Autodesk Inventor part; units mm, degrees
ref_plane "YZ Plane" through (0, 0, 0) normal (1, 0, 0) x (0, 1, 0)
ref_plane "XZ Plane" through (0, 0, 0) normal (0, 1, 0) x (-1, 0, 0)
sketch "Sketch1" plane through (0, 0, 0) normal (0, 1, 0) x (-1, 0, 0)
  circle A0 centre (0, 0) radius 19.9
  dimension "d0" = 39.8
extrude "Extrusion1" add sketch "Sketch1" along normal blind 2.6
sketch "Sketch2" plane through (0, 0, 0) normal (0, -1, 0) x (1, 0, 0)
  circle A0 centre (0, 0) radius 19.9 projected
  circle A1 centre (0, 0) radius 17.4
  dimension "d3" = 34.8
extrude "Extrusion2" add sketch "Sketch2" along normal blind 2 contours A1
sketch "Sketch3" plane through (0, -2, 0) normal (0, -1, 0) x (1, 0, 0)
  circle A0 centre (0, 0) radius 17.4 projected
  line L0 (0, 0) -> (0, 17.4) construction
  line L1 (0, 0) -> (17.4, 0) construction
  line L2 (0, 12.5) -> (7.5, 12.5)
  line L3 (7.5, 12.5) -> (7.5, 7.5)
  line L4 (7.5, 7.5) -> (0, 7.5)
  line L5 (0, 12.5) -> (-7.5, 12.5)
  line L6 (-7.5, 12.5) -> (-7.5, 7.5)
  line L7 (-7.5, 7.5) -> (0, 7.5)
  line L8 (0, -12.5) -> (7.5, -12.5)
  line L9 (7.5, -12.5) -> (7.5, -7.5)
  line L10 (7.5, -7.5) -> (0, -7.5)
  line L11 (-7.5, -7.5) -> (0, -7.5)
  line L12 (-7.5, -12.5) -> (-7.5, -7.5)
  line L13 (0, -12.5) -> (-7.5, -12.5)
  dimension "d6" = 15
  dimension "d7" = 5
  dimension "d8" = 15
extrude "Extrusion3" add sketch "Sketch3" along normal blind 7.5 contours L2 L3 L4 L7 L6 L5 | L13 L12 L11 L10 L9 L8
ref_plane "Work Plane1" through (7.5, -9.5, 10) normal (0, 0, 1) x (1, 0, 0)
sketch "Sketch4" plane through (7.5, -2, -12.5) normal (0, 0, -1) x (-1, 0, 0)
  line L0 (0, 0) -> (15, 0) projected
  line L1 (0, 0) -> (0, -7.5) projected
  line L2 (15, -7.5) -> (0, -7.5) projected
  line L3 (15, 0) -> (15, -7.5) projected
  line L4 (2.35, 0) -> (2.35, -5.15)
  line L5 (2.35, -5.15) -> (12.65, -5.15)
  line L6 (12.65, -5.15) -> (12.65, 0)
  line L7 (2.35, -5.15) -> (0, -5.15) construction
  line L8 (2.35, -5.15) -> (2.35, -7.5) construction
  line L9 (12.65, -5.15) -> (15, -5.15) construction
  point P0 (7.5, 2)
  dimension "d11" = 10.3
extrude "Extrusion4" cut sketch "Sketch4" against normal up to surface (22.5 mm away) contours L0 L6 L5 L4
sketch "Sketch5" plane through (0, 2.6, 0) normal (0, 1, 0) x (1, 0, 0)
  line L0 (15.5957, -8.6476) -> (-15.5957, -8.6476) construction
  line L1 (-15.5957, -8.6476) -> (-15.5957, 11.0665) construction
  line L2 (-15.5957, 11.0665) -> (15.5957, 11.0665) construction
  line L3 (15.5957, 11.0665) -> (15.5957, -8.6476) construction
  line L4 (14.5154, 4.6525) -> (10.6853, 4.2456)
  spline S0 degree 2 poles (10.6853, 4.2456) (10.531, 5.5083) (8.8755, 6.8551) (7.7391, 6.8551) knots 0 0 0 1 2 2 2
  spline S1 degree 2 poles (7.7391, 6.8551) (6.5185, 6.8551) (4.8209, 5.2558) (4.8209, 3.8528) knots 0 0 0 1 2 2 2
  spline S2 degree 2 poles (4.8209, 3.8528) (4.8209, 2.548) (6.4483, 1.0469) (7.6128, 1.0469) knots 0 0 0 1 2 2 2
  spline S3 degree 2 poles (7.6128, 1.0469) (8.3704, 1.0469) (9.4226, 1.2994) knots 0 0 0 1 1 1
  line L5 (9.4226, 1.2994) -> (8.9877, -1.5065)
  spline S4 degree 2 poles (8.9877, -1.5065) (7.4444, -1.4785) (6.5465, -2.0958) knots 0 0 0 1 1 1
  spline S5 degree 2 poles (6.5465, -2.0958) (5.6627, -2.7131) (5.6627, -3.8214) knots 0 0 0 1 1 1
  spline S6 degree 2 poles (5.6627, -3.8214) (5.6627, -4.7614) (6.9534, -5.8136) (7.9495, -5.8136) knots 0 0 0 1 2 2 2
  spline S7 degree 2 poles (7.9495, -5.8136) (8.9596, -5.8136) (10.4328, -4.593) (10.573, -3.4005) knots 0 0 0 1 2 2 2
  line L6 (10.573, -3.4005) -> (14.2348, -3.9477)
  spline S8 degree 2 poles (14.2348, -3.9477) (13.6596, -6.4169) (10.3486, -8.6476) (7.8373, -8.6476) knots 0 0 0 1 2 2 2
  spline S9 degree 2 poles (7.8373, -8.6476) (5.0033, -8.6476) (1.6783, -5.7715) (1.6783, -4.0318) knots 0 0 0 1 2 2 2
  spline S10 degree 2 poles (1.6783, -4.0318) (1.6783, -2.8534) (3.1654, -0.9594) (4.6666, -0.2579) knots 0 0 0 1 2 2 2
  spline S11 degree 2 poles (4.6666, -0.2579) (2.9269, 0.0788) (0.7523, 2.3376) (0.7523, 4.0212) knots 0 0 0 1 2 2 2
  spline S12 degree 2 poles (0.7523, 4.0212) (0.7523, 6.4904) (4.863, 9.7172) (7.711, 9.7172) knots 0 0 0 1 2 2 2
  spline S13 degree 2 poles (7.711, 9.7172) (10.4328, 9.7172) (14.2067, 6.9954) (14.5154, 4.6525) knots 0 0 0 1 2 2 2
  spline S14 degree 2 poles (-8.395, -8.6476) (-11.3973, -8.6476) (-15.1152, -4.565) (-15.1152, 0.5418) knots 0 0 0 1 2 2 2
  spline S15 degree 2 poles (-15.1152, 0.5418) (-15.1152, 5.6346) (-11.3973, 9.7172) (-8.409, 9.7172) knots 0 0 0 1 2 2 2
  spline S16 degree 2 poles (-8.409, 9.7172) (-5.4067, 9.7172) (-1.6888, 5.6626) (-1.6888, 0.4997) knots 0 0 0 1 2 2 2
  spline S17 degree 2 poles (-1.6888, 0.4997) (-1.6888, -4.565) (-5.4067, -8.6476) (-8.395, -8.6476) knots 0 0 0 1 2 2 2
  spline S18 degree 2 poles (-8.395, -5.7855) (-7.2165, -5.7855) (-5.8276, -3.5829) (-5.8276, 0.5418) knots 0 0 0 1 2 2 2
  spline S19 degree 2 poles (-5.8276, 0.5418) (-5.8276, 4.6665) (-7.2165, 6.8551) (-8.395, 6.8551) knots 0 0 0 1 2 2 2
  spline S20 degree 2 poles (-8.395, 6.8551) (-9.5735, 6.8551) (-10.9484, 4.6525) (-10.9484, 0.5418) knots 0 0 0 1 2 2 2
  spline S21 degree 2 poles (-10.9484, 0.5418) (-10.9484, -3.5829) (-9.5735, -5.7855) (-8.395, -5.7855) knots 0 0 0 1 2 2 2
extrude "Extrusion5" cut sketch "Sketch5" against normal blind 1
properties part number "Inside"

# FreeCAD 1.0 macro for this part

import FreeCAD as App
import Part
import Sketcher
from FreeCAD import Vector


def add_polygon(sketch, points):
    """Adds a closed chain of lines whose ends are joined by coincident constraints."""
    first, n = sketch.GeometryCount, len(points)
    for a, b in zip(points, points[1:] + points[:1]):
        sketch.addGeometry(Part.LineSegment(App.Vector(*a, 0), App.Vector(*b, 0)), False)
    for i in range(n):
        sketch.addConstraint(Sketcher.Constraint("Coincident", first + i, 2, first + (i + 1) % n, 1))

doc = App.newDocument("Part")
params = doc.addObject("Spreadsheet::Sheet", "Params")
for row, (alias, value) in enumerate([
    ("sketch1_diameter", "39.8 mm"),
    ("pad1_length", "2.6 mm"),
    ("sketch2_diameter", "34.8 mm"),
    ("pad2_length", "2 mm"),
    ("sketch3_width", "15 mm"),
    ("sketch3_height", "5 mm"),
    ("pad3_length", "7.5 mm"),
    ("sketch4_width", "10.3 mm"),
    ("sketch4_height", "5.15 mm"),
    ("pocket1_length", "22.5 mm"),
    ("pocket2_length", "1 mm"),
], start=1):
    params.set(f"A{row}", alias)
    params.set(f"B{row}", "=" + value)
    params.setAlias(f"B{row}", alias)

body = doc.addObject("PartDesign::Body", "Body")

sketch1 = body.newObject("Sketcher::SketchObject", "Sketch")
sketch1.AttachmentSupport = (doc.getObject("XZ_Plane"), [""])
sketch1.MapMode = "FlatFace"
sketch1.addGeometry(Part.Circle(Vector(0, 0, 0), Vector(0, 0, 1), 20), False)
sketch1.addConstraint([
    Sketcher.Constraint("Coincident", 0, 3, -1, 1),
    Sketcher.Constraint("Diameter", 0, 39.8),
])
sketch1.setExpression("Constraints[1]", "Params.sketch1_diameter")
pad1 = body.newObject("PartDesign::Pad", "Pad")
pad1.Profile = sketch1
pad1.setExpression("Length", "Params.pad1_length")
pad1.Reversed = True

sketch2 = body.newObject("Sketcher::SketchObject", "Sketch001")
sketch2.AttachmentSupport = (doc.getObject("XZ_Plane"), [""])
sketch2.MapMode = "FlatFace"
sketch2.addGeometry(Part.Circle(Vector(0, 0, 0), Vector(0, 0, 1), 17), False)
sketch2.addConstraint([
    Sketcher.Constraint("Coincident", 0, 3, -1, 1),
    Sketcher.Constraint("Diameter", 0, 34.8),
])
sketch2.setExpression("Constraints[1]", "Params.sketch2_diameter")
pad2 = body.newObject("PartDesign::Pad", "Pad001")
pad2.Profile = sketch2
pad2.setExpression("Length", "Params.pad2_length")

sketch3 = body.newObject("Sketcher::SketchObject", "Sketch002")
sketch3.AttachmentSupport = (doc.getObject("XZ_Plane"), [""])
sketch3.MapMode = "FlatFace"
sketch3.AttachmentOffset = App.Placement(Vector(0, 0, 2), App.Rotation())
add_polygon(sketch3, [(8, 12), (-8, 12), (-8, 8), (8, 8)])
add_polygon(sketch3, [(-8, -12), (8, -12), (8, -8), (-8, -8)])
sketch3.addConstraint([
    Sketcher.Constraint("Horizontal", 0),
    Sketcher.Constraint("Vertical", 1),
    Sketcher.Constraint("Horizontal", 2),
    Sketcher.Constraint("Vertical", 3),
    Sketcher.Constraint("Horizontal", 4),
    Sketcher.Constraint("Vertical", 5),
    Sketcher.Constraint("Horizontal", 6),
    Sketcher.Constraint("Vertical", 7),
    Sketcher.Constraint("Symmetric", 0, 2, 4, 2, -1, 1),
    Sketcher.Constraint("Symmetric", 2, 2, 6, 2, -1, 1),
    Sketcher.Constraint("Vertical", 3, 2, 4, 2),
    Sketcher.Constraint("DistanceX", 0, 2, 0, 1, 15.0),
    Sketcher.Constraint("DistanceY", 1, 2, 1, 1, 5.0),
    Sketcher.Constraint("DistanceY", 5, 2, 2, 2, 15.0),
])
sketch3.setExpression("Constraints[19]", "Params.sketch3_width")
sketch3.setExpression("Constraints[20]", "Params.sketch3_height")
pad3 = body.newObject("PartDesign::Pad", "Pad002")
pad3.Profile = sketch3
pad3.setExpression("Length", "Params.pad3_length")

sketch4 = body.newObject("Sketcher::SketchObject", "Sketch003")
sketch4.AttachmentSupport = (doc.getObject("XY_Plane"), [""])
sketch4.MapMode = "FlatFace"
sketch4.AttachmentOffset = App.Placement(Vector(0, 0, -12.5), App.Rotation())
add_polygon(sketch4, [(-5, -2), (5, -2), (5, -7), (-5, -7)])
sketch4.addConstraint([
    Sketcher.Constraint("Horizontal", 0),
    Sketcher.Constraint("Vertical", 1),
    Sketcher.Constraint("Horizontal", 2),
    Sketcher.Constraint("Vertical", 3),
    Sketcher.Constraint("DistanceX", 0, 1, 0, 2, 10.3),
    Sketcher.Constraint("DistanceY", 0, 2, -1, 1, 2.0),
    Sketcher.Constraint("DistanceY", 1, 2, 1, 1, 5.15),
    Sketcher.Constraint("DistanceX", -1, 1, 0, 2, 5.15),
])
sketch4.setExpression("Constraints[8]", "Params.sketch4_width")
sketch4.setExpression("Constraints[10]", "Params.sketch4_height")
pocket1 = body.newObject("PartDesign::Pocket", "Pocket")
pocket1.Profile = sketch4
pocket1.setExpression("Length", "Params.pocket1_length")
pocket1.Reversed = True

sketch5 = body.newObject("Sketcher::SketchObject", "Sketch004")
sketch5.AttachmentSupport = (doc.getObject("XZ_Plane"), [""])
sketch5.MapMode = "FlatFace"
sketch5.AttachmentOffset = App.Placement(Vector(0, 0, -2.6), App.Rotation())
sketch5.addGeometry([
    Part.LineSegment(Vector(10.6853, -4.2456, 0), Vector(14.5154, -4.6525, 0)),
    Part.BSplineCurve([Vector(7.711, -9.7172, 0), Vector(10.4328, -9.7172, 0), Vector(14.2067, -6.9954, 0), Vector(14.5154, -4.6525, 0)], [3, 1, 3], [0, 1, 2], False, 2, [1, 1, 1, 1], False),
    Part.BSplineCurve([Vector(0.7523, -4.0212, 0), Vector(0.7523, -6.4904, 0), Vector(4.863, -9.7172, 0), Vector(7.711, -9.7172, 0)], [3, 1, 3], [0, 1, 2], False, 2, [1, 1, 1, 1], False),
    Part.BSplineCurve([Vector(4.6666, 0.2579, 0), Vector(2.9269, -0.0788, 0), Vector(0.7523, -2.3376, 0), Vector(0.7523, -4.0212, 0)], [3, 1, 3], [0, 1, 2], False, 2, [1, 1, 1, 1], False),
    Part.BSplineCurve([Vector(1.6783, 4.0318, 0), Vector(1.6783, 2.8534, 0), Vector(3.1654, 0.9594, 0), Vector(4.6666, 0.2579, 0)], [3, 1, 3], [0, 1, 2], False, 2, [1, 1, 1, 1], False),
    Part.BSplineCurve([Vector(7.8373, 8.6476, 0), Vector(5.0033, 8.6476, 0), Vector(1.6783, 5.7715, 0), Vector(1.6783, 4.0318, 0)], [3, 1, 3], [0, 1, 2], False, 2, [1, 1, 1, 1], False),
    Part.BSplineCurve([Vector(14.2348, 3.9477, 0), Vector(13.6596, 6.4169, 0), Vector(10.3486, 8.6476, 0), Vector(7.8373, 8.6476, 0)], [3, 1, 3], [0, 1, 2], False, 2, [1, 1, 1, 1], False),
    Part.LineSegment(Vector(14.2348, 3.9477, 0), Vector(10.573, 3.4005, 0)),
    Part.BSplineCurve([Vector(7.9495, 5.8136, 0), Vector(8.9596, 5.8136, 0), Vector(10.4328, 4.593, 0), Vector(10.573, 3.4005, 0)], [3, 1, 3], [0, 1, 2], False, 2, [1, 1, 1, 1], False),
    Part.BSplineCurve([Vector(5.6627, 3.8214, 0), Vector(5.6627, 4.7614, 0), Vector(6.9534, 5.8136, 0), Vector(7.9495, 5.8136, 0)], [3, 1, 3], [0, 1, 2], False, 2, [1, 1, 1, 1], False),
    Part.BSplineCurve([Vector(6.5465, 2.0958, 0), Vector(5.6627, 2.7131, 0), Vector(5.6627, 3.8214, 0)], [3, 3], [0, 1], False, 2, [1, 1, 1], False),
    Part.BSplineCurve([Vector(8.9877, 1.5065, 0), Vector(7.4444, 1.4785, 0), Vector(6.5465, 2.0958, 0)], [3, 3], [0, 1], False, 2, [1, 1, 1], False),
    Part.LineSegment(Vector(8.9877, 1.5065, 0), Vector(9.4226, -1.2994, 0)),
    Part.BSplineCurve([Vector(7.6128, -1.0469, 0), Vector(8.3704, -1.0469, 0), Vector(9.4226, -1.2994, 0)], [3, 3], [0, 1], False, 2, [1, 1, 1], False),
    Part.BSplineCurve([Vector(4.8209, -3.8528, 0), Vector(4.8209, -2.548, 0), Vector(6.4483, -1.0469, 0), Vector(7.6128, -1.0469, 0)], [3, 1, 3], [0, 1, 2], False, 2, [1, 1, 1, 1], False),
    Part.BSplineCurve([Vector(7.7391, -6.8551, 0), Vector(6.5185, -6.8551, 0), Vector(4.8209, -5.2558, 0), Vector(4.8209, -3.8528, 0)], [3, 1, 3], [0, 1, 2], False, 2, [1, 1, 1, 1], False),
    Part.BSplineCurve([Vector(10.6853, -4.2456, 0), Vector(10.531, -5.5083, 0), Vector(8.8755, -6.8551, 0), Vector(7.7391, -6.8551, 0)], [3, 1, 3], [0, 1, 2], False, 2, [1, 1, 1, 1], False),
    Part.BSplineCurve([Vector(-8.395, 8.6476, 0), Vector(-11.3973, 8.6476, 0), Vector(-15.1152, 4.565, 0), Vector(-15.1152, -0.5418, 0)], [3, 1, 3], [0, 1, 2], False, 2, [1, 1, 1, 1], False),
    Part.BSplineCurve([Vector(-1.6888, -0.4997, 0), Vector(-1.6888, 4.565, 0), Vector(-5.4067, 8.6476, 0), Vector(-8.395, 8.6476, 0)], [3, 1, 3], [0, 1, 2], False, 2, [1, 1, 1, 1], False),
    Part.BSplineCurve([Vector(-8.409, -9.7172, 0), Vector(-5.4067, -9.7172, 0), Vector(-1.6888, -5.6626, 0), Vector(-1.6888, -0.4997, 0)], [3, 1, 3], [0, 1, 2], False, 2, [1, 1, 1, 1], False),
    Part.BSplineCurve([Vector(-15.1152, -0.5418, 0), Vector(-15.1152, -5.6346, 0), Vector(-11.3973, -9.7172, 0), Vector(-8.409, -9.7172, 0)], [3, 1, 3], [0, 1, 2], False, 2, [1, 1, 1, 1], False),
    Part.BSplineCurve([Vector(-8.395, 5.7855, 0), Vector(-7.2165, 5.7855, 0), Vector(-5.8276, 3.5829, 0), Vector(-5.8276, -0.5418, 0)], [3, 1, 3], [0, 1, 2], False, 2, [1, 1, 1, 1], False),
    Part.BSplineCurve([Vector(-10.9484, -0.5418, 0), Vector(-10.9484, 3.5829, 0), Vector(-9.5735, 5.7855, 0), Vector(-8.395, 5.7855, 0)], [3, 1, 3], [0, 1, 2], False, 2, [1, 1, 1, 1], False),
    Part.BSplineCurve([Vector(-8.395, -6.8551, 0), Vector(-9.5735, -6.8551, 0), Vector(-10.9484, -4.6525, 0), Vector(-10.9484, -0.5418, 0)], [3, 1, 3], [0, 1, 2], False, 2, [1, 1, 1, 1], False),
    Part.BSplineCurve([Vector(-5.8276, -0.5418, 0), Vector(-5.8276, -4.6665, 0), Vector(-7.2165, -6.8551, 0), Vector(-8.395, -6.8551, 0)], [3, 1, 3], [0, 1, 2], False, 2, [1, 1, 1, 1], False),
], False)
sketch5.addConstraint([
    Sketcher.Constraint("Block", 1),
    Sketcher.Constraint("Block", 2),
    Sketcher.Constraint("Block", 3),
    Sketcher.Constraint("Block", 4),
    Sketcher.Constraint("Block", 5),
    Sketcher.Constraint("Block", 6),
    Sketcher.Constraint("Block", 8),
    Sketcher.Constraint("Block", 9),
    Sketcher.Constraint("Block", 10),
    Sketcher.Constraint("Block", 11),
    Sketcher.Constraint("Block", 13),
    Sketcher.Constraint("Block", 14),
    Sketcher.Constraint("Block", 15),
    Sketcher.Constraint("Block", 16),
    Sketcher.Constraint("Block", 17),
    Sketcher.Constraint("Block", 18),
    Sketcher.Constraint("Block", 19),
    Sketcher.Constraint("Block", 20),
    Sketcher.Constraint("Block", 21),
    Sketcher.Constraint("Block", 22),
    Sketcher.Constraint("Block", 23),
    Sketcher.Constraint("Block", 24),
    Sketcher.Constraint("Coincident", 0, 2, 1, 2),
    Sketcher.Constraint("Coincident", 6, 1, 7, 1),
    Sketcher.Constraint("Coincident", 7, 2, 8, 2),
    Sketcher.Constraint("Coincident", 11, 1, 12, 1),
    Sketcher.Constraint("Coincident", 12, 2, 13, 2),
    Sketcher.Constraint("Coincident", 16, 1, 0, 1),
])
pocket2 = body.newObject("PartDesign::Pocket", "Pocket001")
pocket2.Profile = sketch5
pocket2.setExpression("Length", "Params.pocket2_length")
pocket2.Reversed = True

doc.recompute()
